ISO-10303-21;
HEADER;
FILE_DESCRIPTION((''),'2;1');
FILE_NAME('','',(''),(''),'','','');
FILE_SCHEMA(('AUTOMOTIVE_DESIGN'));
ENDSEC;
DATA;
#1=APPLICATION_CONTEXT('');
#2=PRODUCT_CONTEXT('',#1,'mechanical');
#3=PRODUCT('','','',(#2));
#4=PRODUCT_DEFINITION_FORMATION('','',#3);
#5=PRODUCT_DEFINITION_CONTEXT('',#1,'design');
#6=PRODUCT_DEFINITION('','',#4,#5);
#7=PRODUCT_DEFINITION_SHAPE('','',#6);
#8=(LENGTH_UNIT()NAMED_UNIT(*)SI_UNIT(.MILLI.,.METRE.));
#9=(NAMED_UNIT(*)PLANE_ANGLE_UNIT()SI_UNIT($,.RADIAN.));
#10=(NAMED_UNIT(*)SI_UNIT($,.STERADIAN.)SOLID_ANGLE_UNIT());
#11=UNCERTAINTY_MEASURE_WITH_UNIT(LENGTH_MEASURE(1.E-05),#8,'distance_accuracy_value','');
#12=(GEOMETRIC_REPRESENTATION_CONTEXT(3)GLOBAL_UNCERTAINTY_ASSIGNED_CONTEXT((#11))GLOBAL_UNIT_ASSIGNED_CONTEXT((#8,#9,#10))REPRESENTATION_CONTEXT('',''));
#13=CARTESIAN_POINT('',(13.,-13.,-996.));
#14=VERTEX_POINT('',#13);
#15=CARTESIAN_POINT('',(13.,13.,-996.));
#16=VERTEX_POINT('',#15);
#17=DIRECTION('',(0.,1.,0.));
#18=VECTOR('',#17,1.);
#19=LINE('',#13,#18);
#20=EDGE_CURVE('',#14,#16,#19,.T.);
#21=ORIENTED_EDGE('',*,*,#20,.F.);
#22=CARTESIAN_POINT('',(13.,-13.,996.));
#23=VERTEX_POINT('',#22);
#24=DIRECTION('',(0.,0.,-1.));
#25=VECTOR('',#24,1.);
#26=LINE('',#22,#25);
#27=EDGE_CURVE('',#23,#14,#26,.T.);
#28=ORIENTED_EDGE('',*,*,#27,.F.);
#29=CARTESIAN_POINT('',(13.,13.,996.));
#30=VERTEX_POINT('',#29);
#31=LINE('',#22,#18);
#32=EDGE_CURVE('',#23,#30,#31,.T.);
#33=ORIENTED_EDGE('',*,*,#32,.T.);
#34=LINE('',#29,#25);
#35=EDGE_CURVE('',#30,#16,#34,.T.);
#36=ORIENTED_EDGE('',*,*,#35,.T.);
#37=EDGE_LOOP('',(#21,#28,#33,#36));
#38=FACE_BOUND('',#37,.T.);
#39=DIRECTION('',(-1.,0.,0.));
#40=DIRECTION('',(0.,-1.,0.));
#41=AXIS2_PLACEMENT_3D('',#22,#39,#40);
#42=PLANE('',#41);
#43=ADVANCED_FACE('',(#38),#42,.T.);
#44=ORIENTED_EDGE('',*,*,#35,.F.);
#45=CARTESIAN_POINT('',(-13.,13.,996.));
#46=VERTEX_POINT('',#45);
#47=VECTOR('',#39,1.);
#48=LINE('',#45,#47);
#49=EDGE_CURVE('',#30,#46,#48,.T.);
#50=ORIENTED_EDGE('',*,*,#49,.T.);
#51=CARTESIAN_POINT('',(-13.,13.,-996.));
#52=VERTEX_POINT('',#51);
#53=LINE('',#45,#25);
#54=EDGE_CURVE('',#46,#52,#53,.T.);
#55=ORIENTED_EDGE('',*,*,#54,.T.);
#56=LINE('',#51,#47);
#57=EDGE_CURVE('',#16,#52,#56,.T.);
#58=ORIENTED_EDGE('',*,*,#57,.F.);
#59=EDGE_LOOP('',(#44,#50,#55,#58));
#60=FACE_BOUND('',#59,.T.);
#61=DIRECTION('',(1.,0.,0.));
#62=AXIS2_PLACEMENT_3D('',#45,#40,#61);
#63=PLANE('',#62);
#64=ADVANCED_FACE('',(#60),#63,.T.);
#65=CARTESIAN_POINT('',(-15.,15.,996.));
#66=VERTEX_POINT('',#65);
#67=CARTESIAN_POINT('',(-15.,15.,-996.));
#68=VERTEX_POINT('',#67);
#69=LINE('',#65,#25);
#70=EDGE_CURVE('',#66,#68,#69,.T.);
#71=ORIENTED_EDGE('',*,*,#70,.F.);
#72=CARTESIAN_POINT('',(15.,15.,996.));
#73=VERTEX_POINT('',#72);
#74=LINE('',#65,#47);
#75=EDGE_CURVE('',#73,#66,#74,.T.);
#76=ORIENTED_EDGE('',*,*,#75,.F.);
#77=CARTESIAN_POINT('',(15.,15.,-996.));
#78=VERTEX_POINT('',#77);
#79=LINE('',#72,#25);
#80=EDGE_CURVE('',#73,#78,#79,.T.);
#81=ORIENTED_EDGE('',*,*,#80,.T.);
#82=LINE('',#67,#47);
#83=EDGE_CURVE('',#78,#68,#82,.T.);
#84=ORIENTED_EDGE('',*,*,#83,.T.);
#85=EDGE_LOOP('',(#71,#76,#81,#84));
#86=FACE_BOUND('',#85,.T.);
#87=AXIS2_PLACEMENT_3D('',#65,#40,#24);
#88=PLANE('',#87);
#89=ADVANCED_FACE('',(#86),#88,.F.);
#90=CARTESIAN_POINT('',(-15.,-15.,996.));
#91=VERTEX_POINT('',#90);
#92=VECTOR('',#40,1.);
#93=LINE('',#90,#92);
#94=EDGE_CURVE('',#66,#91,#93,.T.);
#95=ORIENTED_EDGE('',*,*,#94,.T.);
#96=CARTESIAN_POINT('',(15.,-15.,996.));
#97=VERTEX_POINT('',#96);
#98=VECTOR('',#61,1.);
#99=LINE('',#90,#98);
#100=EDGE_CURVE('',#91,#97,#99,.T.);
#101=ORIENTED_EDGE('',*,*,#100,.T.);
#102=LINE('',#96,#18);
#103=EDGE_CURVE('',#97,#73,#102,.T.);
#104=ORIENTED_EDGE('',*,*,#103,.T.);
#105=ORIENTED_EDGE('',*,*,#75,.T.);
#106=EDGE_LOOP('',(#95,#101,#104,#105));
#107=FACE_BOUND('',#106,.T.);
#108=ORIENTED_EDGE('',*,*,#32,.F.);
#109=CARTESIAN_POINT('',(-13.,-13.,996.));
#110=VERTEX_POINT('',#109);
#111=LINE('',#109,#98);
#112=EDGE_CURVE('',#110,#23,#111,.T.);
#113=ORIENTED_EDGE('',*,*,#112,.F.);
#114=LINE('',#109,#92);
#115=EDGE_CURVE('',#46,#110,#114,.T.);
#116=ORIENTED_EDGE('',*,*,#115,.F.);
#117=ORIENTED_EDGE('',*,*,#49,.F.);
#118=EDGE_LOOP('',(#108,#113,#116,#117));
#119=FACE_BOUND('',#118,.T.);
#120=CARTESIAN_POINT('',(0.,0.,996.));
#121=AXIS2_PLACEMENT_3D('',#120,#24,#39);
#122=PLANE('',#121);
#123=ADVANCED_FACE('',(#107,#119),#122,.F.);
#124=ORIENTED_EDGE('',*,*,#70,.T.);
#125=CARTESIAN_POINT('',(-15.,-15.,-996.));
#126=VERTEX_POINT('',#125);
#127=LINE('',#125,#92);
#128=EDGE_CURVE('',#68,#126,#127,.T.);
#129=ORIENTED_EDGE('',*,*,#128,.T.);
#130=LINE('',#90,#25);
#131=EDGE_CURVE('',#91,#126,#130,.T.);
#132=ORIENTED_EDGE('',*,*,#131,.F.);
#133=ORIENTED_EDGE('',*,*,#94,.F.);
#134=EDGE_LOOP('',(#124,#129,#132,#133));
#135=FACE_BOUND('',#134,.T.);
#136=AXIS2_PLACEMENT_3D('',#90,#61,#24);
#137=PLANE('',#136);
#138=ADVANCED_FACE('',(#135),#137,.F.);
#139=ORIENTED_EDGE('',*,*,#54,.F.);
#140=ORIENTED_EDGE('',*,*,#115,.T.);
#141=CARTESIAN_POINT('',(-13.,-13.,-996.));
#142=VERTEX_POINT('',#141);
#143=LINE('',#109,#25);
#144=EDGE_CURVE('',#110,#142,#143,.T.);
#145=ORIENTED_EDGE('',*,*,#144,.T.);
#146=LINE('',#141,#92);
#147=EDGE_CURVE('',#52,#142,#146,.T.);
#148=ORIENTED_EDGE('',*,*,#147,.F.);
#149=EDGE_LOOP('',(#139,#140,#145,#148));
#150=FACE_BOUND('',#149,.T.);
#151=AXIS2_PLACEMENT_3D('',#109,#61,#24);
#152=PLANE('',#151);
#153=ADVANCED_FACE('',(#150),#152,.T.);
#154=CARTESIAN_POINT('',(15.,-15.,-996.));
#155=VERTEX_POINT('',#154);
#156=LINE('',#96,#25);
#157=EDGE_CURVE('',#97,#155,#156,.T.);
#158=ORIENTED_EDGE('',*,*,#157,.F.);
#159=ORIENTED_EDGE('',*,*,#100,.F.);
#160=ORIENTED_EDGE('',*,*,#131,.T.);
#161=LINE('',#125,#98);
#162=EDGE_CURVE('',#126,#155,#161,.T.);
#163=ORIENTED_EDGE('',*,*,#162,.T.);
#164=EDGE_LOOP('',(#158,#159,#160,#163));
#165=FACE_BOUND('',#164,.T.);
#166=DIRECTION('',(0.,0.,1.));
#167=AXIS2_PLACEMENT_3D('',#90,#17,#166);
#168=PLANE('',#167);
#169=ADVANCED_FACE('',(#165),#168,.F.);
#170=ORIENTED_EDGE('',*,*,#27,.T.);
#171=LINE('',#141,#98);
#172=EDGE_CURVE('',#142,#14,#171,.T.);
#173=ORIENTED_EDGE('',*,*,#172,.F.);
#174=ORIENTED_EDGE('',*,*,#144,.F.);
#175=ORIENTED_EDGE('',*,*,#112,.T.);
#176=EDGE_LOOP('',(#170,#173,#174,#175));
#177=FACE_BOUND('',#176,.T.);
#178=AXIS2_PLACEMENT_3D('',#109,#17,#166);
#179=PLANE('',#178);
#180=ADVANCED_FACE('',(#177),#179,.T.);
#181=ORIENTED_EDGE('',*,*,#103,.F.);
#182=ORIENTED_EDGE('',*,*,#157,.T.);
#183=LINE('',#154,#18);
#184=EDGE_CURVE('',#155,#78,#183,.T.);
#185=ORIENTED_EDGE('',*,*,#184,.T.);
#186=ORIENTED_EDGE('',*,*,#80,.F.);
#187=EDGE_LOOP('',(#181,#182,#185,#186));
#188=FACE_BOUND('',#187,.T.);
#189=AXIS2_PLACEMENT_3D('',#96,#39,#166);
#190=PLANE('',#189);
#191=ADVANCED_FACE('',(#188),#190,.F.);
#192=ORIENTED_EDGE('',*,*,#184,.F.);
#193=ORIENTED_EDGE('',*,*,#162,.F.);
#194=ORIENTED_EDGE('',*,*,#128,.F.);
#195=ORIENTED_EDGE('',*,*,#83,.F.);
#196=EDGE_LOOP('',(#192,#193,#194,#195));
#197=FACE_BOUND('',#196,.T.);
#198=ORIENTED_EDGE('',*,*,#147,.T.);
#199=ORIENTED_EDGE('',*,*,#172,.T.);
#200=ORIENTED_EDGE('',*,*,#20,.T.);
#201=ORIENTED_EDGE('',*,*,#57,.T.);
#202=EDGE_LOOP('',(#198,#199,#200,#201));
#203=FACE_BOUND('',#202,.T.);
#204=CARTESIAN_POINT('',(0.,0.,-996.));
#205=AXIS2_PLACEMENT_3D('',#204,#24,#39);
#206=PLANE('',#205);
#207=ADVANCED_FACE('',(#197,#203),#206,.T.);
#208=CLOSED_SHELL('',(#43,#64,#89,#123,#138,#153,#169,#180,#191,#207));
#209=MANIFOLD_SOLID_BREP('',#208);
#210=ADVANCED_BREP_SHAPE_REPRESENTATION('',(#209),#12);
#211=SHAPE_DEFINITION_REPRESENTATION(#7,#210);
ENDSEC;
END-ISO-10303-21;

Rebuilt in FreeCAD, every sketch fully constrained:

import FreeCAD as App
import Part
import Sketcher
from FreeCAD import Vector


def add_polygon(sketch, points):
    """Adds a closed chain of lines whose ends are joined by coincident constraints."""
    first, n = sketch.GeometryCount, len(points)
    for a, b in zip(points, points[1:] + points[:1]):
        sketch.addGeometry(Part.LineSegment(App.Vector(*a, 0), App.Vector(*b, 0)), False)
    for i in range(n):
        sketch.addConstraint(Sketcher.Constraint("Coincident", first + i, 2, first + (i + 1) % n, 1))

doc = App.newDocument("Part")
params = doc.addObject("Spreadsheet::Sheet", "Params")
for row, (alias, value) in enumerate([
    ("sketch1_width", "30 mm"),
    ("sketch1_width2", "26 mm"),
    ("pad1_length", "1992 mm"),
], start=1):
    params.set(f"A{row}", alias)
    params.set(f"B{row}", "=" + value)
    params.setAlias(f"B{row}", alias)

body = doc.addObject("PartDesign::Body", "Body")

# Sketch on XY plane
sketch1 = body.newObject("Sketcher::SketchObject", "Sketch")
sketch1.AttachmentSupport = (doc.getObject("XY_Plane"), [""])
sketch1.MapMode = "FlatFace"
add_polygon(sketch1, [(-15, 15), (-15, -15), (15, -15), (15, 15)])  # lines 0-3
add_polygon(sketch1, [(13, -13), (-13, -13), (-13, 13), (13, 13)])  # lines 4-7
sketch1.addConstraint([
    Sketcher.Constraint("Vertical", 0),
    Sketcher.Constraint("Horizontal", 1),
    Sketcher.Constraint("Vertical", 2),
    Sketcher.Constraint("Horizontal", 3),
    Sketcher.Constraint("Horizontal", 4),
    Sketcher.Constraint("Vertical", 5),
    Sketcher.Constraint("Horizontal", 6),
    Sketcher.Constraint("Vertical", 7),
    Sketcher.Constraint("Symmetric", 0, 2, 2, 2, -1, 1),
    Sketcher.Constraint("Symmetric", 4, 2, 6, 2, -1, 1),
    Sketcher.Constraint("Equal", 3, 0),
    Sketcher.Constraint("Equal", 6, 5),
    Sketcher.Constraint("DistanceX", 1, 1, 1, 2, 30.0),
    Sketcher.Constraint("DistanceX", 4, 2, 4, 1, 26.0),
])
sketch1.setExpression("Constraints[20]", "Params.sketch1_width")
sketch1.setExpression("Constraints[21]", "Params.sketch1_width2")
pad1 = body.newObject("PartDesign::Pad", "Pad")
pad1.Profile = sketch1
pad1.setExpression("Length", "Params.pad1_length")
pad1.Midplane = True

doc.recompute()
